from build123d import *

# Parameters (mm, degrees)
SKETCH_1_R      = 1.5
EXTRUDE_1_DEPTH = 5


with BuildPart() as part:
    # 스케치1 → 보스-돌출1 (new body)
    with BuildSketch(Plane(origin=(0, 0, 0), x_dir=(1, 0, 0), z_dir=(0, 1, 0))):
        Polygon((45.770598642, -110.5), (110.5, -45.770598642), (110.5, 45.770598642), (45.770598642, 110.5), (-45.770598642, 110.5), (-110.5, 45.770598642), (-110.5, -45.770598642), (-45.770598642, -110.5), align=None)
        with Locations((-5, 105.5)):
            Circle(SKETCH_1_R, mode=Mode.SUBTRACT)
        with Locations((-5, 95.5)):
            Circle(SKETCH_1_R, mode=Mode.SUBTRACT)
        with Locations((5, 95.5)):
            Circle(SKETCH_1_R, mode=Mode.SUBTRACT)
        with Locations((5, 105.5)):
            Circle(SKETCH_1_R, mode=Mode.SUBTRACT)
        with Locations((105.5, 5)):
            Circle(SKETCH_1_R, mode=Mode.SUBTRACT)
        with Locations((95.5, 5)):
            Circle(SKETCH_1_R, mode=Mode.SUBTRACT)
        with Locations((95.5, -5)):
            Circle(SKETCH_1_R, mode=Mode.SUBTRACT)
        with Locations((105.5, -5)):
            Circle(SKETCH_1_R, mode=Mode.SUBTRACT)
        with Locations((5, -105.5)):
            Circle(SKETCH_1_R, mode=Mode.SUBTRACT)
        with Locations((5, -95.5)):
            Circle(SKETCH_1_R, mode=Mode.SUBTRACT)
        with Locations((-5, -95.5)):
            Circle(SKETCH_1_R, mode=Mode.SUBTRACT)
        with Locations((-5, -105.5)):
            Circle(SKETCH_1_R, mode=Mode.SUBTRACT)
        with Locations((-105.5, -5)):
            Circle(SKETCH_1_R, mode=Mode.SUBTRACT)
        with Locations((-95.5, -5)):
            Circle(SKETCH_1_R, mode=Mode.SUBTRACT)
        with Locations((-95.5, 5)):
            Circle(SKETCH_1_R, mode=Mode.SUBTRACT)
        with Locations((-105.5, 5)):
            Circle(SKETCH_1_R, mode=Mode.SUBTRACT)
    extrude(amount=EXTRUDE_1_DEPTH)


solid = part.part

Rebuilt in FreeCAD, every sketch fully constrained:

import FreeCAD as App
import Part
import Sketcher
from FreeCAD import Vector


def add_polygon(sketch, points):
    """Adds a closed chain of lines whose ends are joined by coincident constraints."""
    first, n = sketch.GeometryCount, len(points)
    for a, b in zip(points, points[1:] + points[:1]):
        sketch.addGeometry(Part.LineSegment(App.Vector(*a, 0), App.Vector(*b, 0)), False)
    for i in range(n):
        sketch.addConstraint(Sketcher.Constraint("Coincident", first + i, 2, first + (i + 1) % n, 1))

doc = App.newDocument("Part")
body = doc.addObject("PartDesign::Body", "Body")

sketch1 = body.newObject("Sketcher::SketchObject", "Sketch")
sketch1.AttachmentSupport = (doc.getObject("XZ_Plane"), [""])
sketch1.MapMode = "FlatFace"
add_polygon(sketch1, [(45.770599, 110.5), (110.5, 45.770599), (110.5, -45.770599), (45.770599, -110.5), (-45.770599, -110.5), (-110.5, -45.770599), (-110.5, 45.770599), (-45.770599, 110.5)])
sketch1.addGeometry(Part.Circle(Vector(-5, 105.5, 0), Vector(0, 0, 1), 1.5), False)
sketch1.addGeometry(Part.Circle(Vector(-5, 95.5, 0), Vector(0, 0, 1), 1.5), False)
sketch1.addGeometry(Part.Circle(Vector(-105.5, 5, 0), Vector(0, 0, 1), 1.5), False)
sketch1.addGeometry(Part.Circle(Vector(-95.5, 5, 0), Vector(0, 0, 1), 1.5), False)
sketch1.addGeometry(Part.Circle(Vector(5, 105.5, 0), Vector(0, 0, 1), 1.5), False)
sketch1.addGeometry(Part.Circle(Vector(5, 95.5, 0), Vector(0, 0, 1), 1.5), False)
sketch1.addGeometry(Part.Circle(Vector(95.5, 5, 0), Vector(0, 0, 1), 1.5), False)
sketch1.addGeometry(Part.Circle(Vector(105.5, 5, 0), Vector(0, 0, 1), 1.5), False)
sketch1.addGeometry(Part.Circle(Vector(-105.5, -5, 0), Vector(0, 0, 1), 1.5), False)
sketch1.addGeometry(Part.Circle(Vector(-95.5, -5, 0), Vector(0, 0, 1), 1.5), False)
sketch1.addGeometry(Part.Circle(Vector(-5, -95.5, 0), Vector(0, 0, 1), 1.5), False)
sketch1.addGeometry(Part.Circle(Vector(-5, -105.5, 0), Vector(0, 0, 1), 1.5), False)
sketch1.addGeometry(Part.Circle(Vector(95.5, -5, 0), Vector(0, 0, 1), 1.5), False)
sketch1.addGeometry(Part.Circle(Vector(105.5, -5, 0), Vector(0, 0, 1), 1.5), False)
sketch1.addGeometry(Part.Circle(Vector(5, -95.5, 0), Vector(0, 0, 1), 1.5), False)
sketch1.addGeometry(Part.Circle(Vector(5, -105.5, 0), Vector(0, 0, 1), 1.5), False)
sketch1.addConstraint([
    Sketcher.Constraint("Vertical", 1),
    Sketcher.Constraint("Horizontal", 3),
    Sketcher.Constraint("Vertical", 5),
    Sketcher.Constraint("Horizontal", 7),
    Sketcher.Constraint("Equal", 8, 9),
    Sketcher.Constraint("Equal", 9, 10),
    Sketcher.Constraint("Equal", 10, 11),
    Sketcher.Constraint("Equal", 11, 12),
    Sketcher.Constraint("Equal", 12, 13),
    Sketcher.Constraint("Equal", 13, 14),
    Sketcher.Constraint("Equal", 14, 15),
    Sketcher.Constraint("Equal", 15, 16),
    Sketcher.Constraint("Equal", 16, 17),
    Sketcher.Constraint("Equal", 17, 18),
    Sketcher.Constraint("Equal", 18, 19),
    Sketcher.Constraint("Equal", 19, 20),
    Sketcher.Constraint("Equal", 20, 21),
    Sketcher.Constraint("Equal", 21, 22),
    Sketcher.Constraint("Equal", 22, 23),
    Sketcher.Constraint("Symmetric", 15, 3, 16, 3, -1, 1),
    Sketcher.Constraint("Symmetric", 14, 3, 17, 3, -1, 1),
    Sketcher.Constraint("Symmetric", 13, 3, 18, 3, -1, 1),
    Sketcher.Constraint("Symmetric", 12, 3, 19, 3, -1, 1),
    Sketcher.Constraint("Symmetric", 11, 3, 20, 3, -1, 1),
    Sketcher.Constraint("Symmetric", 10, 3, 21, 3, -1, 1),
    Sketcher.Constraint("Symmetric", 9, 3, 22, 3, -1, 1),
    Sketcher.Constraint("Symmetric", 8, 3, 23, 3, -1, 1),
    Sketcher.Constraint("Symmetric", 0, 2, 4, 2, -1, 1),
    Sketcher.Constraint("Symmetric", 2, 2, 6, 2, -1, 1),
    Sketcher.Constraint("Symmetric", 8, 3, 12, 3, -2),
    Sketcher.Constraint("Symmetric", 9, 3, 13, 3, -2),
    Sketcher.Constraint("Symmetric", 11, 3, 14, 3, -2),
    Sketcher.Constraint("Symmetric", 10, 3, 15, 3, -2),
    Sketcher.Constraint("Perpendicular", 0, 2),
    Sketcher.Constraint("Perpendicular", 2, 4),
    Sketcher.Constraint("Perpendicular", 4, 6),
    Sketcher.Constraint("Horizontal", 10, 3, 11, 3),
    Sketcher.Constraint("Horizontal", 1, 2, 4, 2),
    Sketcher.Constraint("Vertical", 8, 3, 9, 3),
    Sketcher.Constraint("Vertical", 3, 2, 6, 2),
    Sketcher.Constraint("Equal", 7, 1),
    Sketcher.Constraint("Diameter", 8, 3.0),
    Sketcher.Constraint("DistanceX", 8, 3, -1, 1, 5.0),
    Sketcher.Constraint("DistanceY", -1, 1, 10, 3, 5.0),
    Sketcher.Constraint("DistanceY", 9, 3, 8, 3, 10.0),
    Sketcher.Constraint("DistanceX", 10, 3, 11, 3, 10.0),
    Sketcher.Constraint("DistanceX", 11, 3, 14, 3, 191.0),
    Sketcher.Constraint("DistanceX", 15, 3, 0, 2, 5.0),
    Sketcher.Constraint("DistanceY", 2, 2, 23, 3, 5.0),
    Sketcher.Constraint("DistanceY", -1, 1, 0, 2, 45.770599),
])
pad1 = body.newObject("PartDesign::Pad", "Pad")
pad1.Profile = sketch1
pad1.Length = 5
pad1.Reversed = True

doc.recompute()
